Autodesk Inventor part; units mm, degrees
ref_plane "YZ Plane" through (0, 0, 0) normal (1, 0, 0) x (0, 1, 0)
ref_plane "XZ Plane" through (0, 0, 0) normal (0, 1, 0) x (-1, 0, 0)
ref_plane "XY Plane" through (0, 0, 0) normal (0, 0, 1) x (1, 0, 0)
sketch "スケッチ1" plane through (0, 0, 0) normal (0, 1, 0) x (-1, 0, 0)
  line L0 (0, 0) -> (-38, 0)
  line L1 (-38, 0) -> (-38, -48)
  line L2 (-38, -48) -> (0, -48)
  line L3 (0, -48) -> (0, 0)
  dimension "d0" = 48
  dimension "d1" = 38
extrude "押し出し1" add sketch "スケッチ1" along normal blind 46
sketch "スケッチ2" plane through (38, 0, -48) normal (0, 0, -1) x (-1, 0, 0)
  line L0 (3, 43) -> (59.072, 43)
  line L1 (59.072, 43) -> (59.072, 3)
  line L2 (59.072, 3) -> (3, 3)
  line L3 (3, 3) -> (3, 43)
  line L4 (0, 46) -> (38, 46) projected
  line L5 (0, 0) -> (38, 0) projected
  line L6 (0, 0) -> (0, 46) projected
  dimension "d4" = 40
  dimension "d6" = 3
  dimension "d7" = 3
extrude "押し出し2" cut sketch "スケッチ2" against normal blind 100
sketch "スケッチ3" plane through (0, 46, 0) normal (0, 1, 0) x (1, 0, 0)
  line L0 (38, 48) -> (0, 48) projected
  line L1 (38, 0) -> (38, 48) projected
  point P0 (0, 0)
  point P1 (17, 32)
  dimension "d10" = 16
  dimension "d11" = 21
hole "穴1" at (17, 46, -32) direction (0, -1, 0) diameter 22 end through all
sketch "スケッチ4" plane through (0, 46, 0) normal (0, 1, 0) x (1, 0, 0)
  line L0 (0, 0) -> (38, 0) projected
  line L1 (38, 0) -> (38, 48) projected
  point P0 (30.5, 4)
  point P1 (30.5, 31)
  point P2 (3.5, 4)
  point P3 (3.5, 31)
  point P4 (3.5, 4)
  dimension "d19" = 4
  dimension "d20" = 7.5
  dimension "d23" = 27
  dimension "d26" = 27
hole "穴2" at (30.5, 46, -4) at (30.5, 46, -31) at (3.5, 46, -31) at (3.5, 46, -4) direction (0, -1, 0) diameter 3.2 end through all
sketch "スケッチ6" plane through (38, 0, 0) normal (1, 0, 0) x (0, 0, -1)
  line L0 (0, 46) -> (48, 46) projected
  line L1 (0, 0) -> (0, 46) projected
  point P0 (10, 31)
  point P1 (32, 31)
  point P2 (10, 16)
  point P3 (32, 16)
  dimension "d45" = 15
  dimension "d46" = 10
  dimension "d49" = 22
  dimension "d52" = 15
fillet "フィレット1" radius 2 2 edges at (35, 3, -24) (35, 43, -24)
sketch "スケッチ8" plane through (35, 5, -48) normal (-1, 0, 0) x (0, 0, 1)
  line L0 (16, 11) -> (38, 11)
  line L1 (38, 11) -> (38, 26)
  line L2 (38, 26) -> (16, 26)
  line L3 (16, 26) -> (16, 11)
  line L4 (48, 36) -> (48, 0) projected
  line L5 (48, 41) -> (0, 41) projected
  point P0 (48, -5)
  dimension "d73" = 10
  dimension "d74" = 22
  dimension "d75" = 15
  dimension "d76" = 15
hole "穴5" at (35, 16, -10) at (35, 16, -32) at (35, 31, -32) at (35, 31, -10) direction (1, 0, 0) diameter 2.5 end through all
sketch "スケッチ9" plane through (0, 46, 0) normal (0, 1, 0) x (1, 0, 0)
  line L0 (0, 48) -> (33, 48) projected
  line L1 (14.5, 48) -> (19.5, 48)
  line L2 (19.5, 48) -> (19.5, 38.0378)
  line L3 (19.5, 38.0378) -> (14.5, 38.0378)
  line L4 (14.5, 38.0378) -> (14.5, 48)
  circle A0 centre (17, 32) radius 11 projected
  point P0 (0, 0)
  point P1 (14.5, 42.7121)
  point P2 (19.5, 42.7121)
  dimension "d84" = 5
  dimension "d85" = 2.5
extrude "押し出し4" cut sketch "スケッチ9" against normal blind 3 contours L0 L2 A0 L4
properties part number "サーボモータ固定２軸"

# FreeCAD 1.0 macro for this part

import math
import FreeCAD as App
import Part
import Sketcher

V = App.Vector
Q = App.Units.Quantity


def edges_at(feature, points):
    """Names of the edges that pass closest to the given points."""
    edges = feature.Shape.Edges
    near = lambda p: min(range(len(edges)), key=lambda i: edges[i].distToShape(Part.Vertex(*p))[0])
    return sorted({f"Edge{near(p) + 1}" for p in points})


def add_polygon(sketch, points):
    """Adds a closed chain of lines whose ends are joined by coincident constraints."""
    first, n = sketch.GeometryCount, len(points)
    for a, b in zip(points, points[1:] + points[:1]):
        sketch.addGeometry(Part.LineSegment(App.Vector(*a, 0), App.Vector(*b, 0)), False)
    for i in range(n):
        sketch.addConstraint(Sketcher.Constraint("Coincident", first + i, 2, first + (i + 1) % n, 1))

doc = App.newDocument("Part")
body = doc.addObject("PartDesign::Body", "Body")

# Sketch on XZ plane
sketch1 = body.newObject("Sketcher::SketchObject", "Sketch")
sketch1.AttachmentSupport = (doc.getObject("XZ_Plane"), [""])
sketch1.MapMode = "FlatFace"
add_polygon(sketch1, [(0, -48), (0, 0), (38, 0), (38, -48)])  # lines 0-3
sketch1.addConstraint(Sketcher.Constraint("Vertical", 0))
sketch1.addConstraint(Sketcher.Constraint("Horizontal", 1))
sketch1.addConstraint(Sketcher.Constraint("Vertical", 2))
sketch1.addConstraint(Sketcher.Constraint("Horizontal", 3))
sketch1.addConstraint(Sketcher.Constraint("Coincident", 0, 2, -1, 1))
sketch1.addConstraint(Sketcher.Constraint("DistanceX", 1, 1, 1, 2, Q("38 mm")))
sketch1.addConstraint(Sketcher.Constraint("DistanceY", 0, 1, 0, 2, Q("48 mm")))
pad1 = body.newObject("PartDesign::Pad", "Pad")
pad1.Profile = sketch1
pad1.Length = 46
pad1.Reversed = True

# Sketch on XY plane
sketch2 = body.newObject("Sketcher::SketchObject", "Sketch001")
sketch2.AttachmentSupport = (doc.getObject("XY_Plane"), [""])
sketch2.MapMode = "FlatFace"
sketch2.AttachmentOffset = App.Placement(V(0, 0, -48), App.Rotation())
add_polygon(sketch2, [(-21.072, 43), (35, 43), (35, 3), (-21.072, 3)])  # lines 0-3
sketch2.addConstraint(Sketcher.Constraint("Horizontal", 0))
sketch2.addConstraint(Sketcher.Constraint("Vertical", 1))
sketch2.addConstraint(Sketcher.Constraint("Horizontal", 2))
sketch2.addConstraint(Sketcher.Constraint("Vertical", 3))
sketch2.addConstraint(Sketcher.Constraint("DistanceY", 1, 2, 1, 1, Q("40 mm")))
sketch2.addConstraint(Sketcher.Constraint("DistanceY", -1, 1, 1, 2, Q("3 mm")))
sketch2.addConstraint(Sketcher.Constraint("DistanceX", -1, 1, 0, 2, Q("35 mm")))
sketch2.addConstraint(Sketcher.Constraint("DistanceX", 0, 1, 0, 2, Q("56.072 mm")))
pocket1 = body.newObject("PartDesign::Pocket", "Pocket")
pocket1.Profile = sketch2
pocket1.Length = 100
pocket1.Reversed = True

# Sketch on XZ plane
sketch3 = body.newObject("Sketcher::SketchObject", "Sketch002")
sketch3.AttachmentSupport = (doc.getObject("XZ_Plane"), [""])
sketch3.MapMode = "FlatFace"
sketch3.AttachmentOffset = App.Placement(V(0, 0, -46), App.Rotation())
sketch3.addGeometry(Part.Circle(V(17, -32, 0), V(0, 0, 1), 11), False)
sketch3.addConstraint(Sketcher.Constraint("Diameter", 0, Q("22 mm")))
sketch3.addConstraint(Sketcher.Constraint("DistanceX", -1, 1, 0, 3, Q("17 mm")))
sketch3.addConstraint(Sketcher.Constraint("DistanceY", 0, 3, -1, 1, Q("32 mm")))
doc.recompute()
hole = body.newObject("PartDesign::Hole", "Hole")
hole.Profile = sketch3
hole.ThreadType = "None"
hole.Diameter = 22
hole.DepthType = "ThroughAll"
hole.Reversed = True

# Sketch on XZ plane
sketch4 = body.newObject("Sketcher::SketchObject", "Sketch003")
sketch4.AttachmentSupport = (doc.getObject("XZ_Plane"), [""])
sketch4.MapMode = "FlatFace"
sketch4.AttachmentOffset = App.Placement(V(0, 0, -46), App.Rotation())
sketch4.addGeometry(Part.Circle(V(30.5, -4, 0), V(0, 0, 1), 1.6), False)
sketch4.addGeometry(Part.Circle(V(30.5, -31, 0), V(0, 0, 1), 1.6), False)
sketch4.addGeometry(Part.Circle(V(3.5, -31, 0), V(0, 0, 1), 1.6), False)
sketch4.addGeometry(Part.Circle(V(3.5, -4, 0), V(0, 0, 1), 1.6), False)
sketch4.addConstraint(Sketcher.Constraint("Equal", 0, 1))
sketch4.addConstraint(Sketcher.Constraint("Equal", 1, 2))
sketch4.addConstraint(Sketcher.Constraint("Equal", 2, 3))
sketch4.addConstraint(Sketcher.Constraint("Horizontal", 1, 3, 2, 3))
sketch4.addConstraint(Sketcher.Constraint("Horizontal", 0, 3, 3, 3))
sketch4.addConstraint(Sketcher.Constraint("Vertical", 0, 3, 1, 3))
sketch4.addConstraint(Sketcher.Constraint("Vertical", 2, 3, 3, 3))
sketch4.addConstraint(Sketcher.Constraint("Diameter", 0, Q("3.2 mm")))
sketch4.addConstraint(Sketcher.Constraint("DistanceY", 0, 3, -1, 1, Q("4 mm")))
sketch4.addConstraint(Sketcher.Constraint("DistanceY", 1, 3, -1, 1, Q("31 mm")))
sketch4.addConstraint(Sketcher.Constraint("DistanceX", 2, 3, 1, 3, Q("27 mm")))
sketch4.addConstraint(Sketcher.Constraint("DistanceX", -1, 1, 0, 3, Q("30.5 mm")))
doc.recompute()
hole2 = body.newObject("PartDesign::Hole", "Hole001")
hole2.Profile = sketch4
hole2.ThreadType = "None"
hole2.Diameter = 3.2
hole2.DepthType = "ThroughAll"
hole2.Reversed = True
doc.recompute()

fillet = body.newObject("PartDesign::Fillet", "Fillet")
fillet.Base = (hole2, edges_at(hole2, [(35, 3, -24), (35, 43, -24)]))
fillet.Radius = 2

# Sketch on YZ plane
sketch5 = body.newObject("Sketcher::SketchObject", "Sketch004")
sketch5.AttachmentSupport = (doc.getObject("YZ_Plane"), [""])
sketch5.MapMode = "FlatFace"
sketch5.AttachmentOffset = App.Placement(V(0, 0, 35), App.Rotation())
sketch5.addGeometry(Part.Circle(V(16, -10, 0), V(0, 0, 1), 1.25), False)
sketch5.addGeometry(Part.Circle(V(16, -32, 0), V(0, 0, 1), 1.25), False)
sketch5.addGeometry(Part.Circle(V(31, -32, 0), V(0, 0, 1), 1.25), False)
sketch5.addGeometry(Part.Circle(V(31, -10, 0), V(0, 0, 1), 1.25), False)
sketch5.addConstraint(Sketcher.Constraint("Equal", 0, 1))
sketch5.addConstraint(Sketcher.Constraint("Equal", 1, 2))
sketch5.addConstraint(Sketcher.Constraint("Equal", 2, 3))
sketch5.addConstraint(Sketcher.Constraint("Horizontal", 1, 3, 2, 3))
sketch5.addConstraint(Sketcher.Constraint("Horizontal", 0, 3, 3, 3))
sketch5.addConstraint(Sketcher.Constraint("Vertical", 0, 3, 1, 3))
sketch5.addConstraint(Sketcher.Constraint("Vertical", 2, 3, 3, 3))
sketch5.addConstraint(Sketcher.Constraint("Diameter", 0, Q("2.5 mm")))
sketch5.addConstraint(Sketcher.Constraint("DistanceX", -1, 1, 0, 3, Q("16 mm")))
sketch5.addConstraint(Sketcher.Constraint("DistanceY", 0, 3, -1, 1, Q("10 mm")))
sketch5.addConstraint(Sketcher.Constraint("DistanceY", 1, 3, -1, 1, Q("32 mm")))
sketch5.addConstraint(Sketcher.Constraint("DistanceX", -1, 1, 2, 3, Q("31 mm")))
doc.recompute()
hole3 = body.newObject("PartDesign::Hole", "Hole002")
hole3.Profile = sketch5
hole3.ThreadType = "None"
hole3.Diameter = 2.5
hole3.DepthType = "ThroughAll"
hole3.Reversed = True

# Sketch on XZ plane
sketch6 = body.newObject("Sketcher::SketchObject", "Sketch005")
sketch6.AttachmentSupport = (doc.getObject("XZ_Plane"), [""])
sketch6.MapMode = "FlatFace"
sketch6.AttachmentOffset = App.Placement(V(0, 0, -46), App.Rotation())
sketch6.addGeometry(Part.LineSegment(V(19.5, -48, 0), V(14.5, -48, 0)), False)
sketch6.addGeometry(Part.LineSegment(V(14.5, -48, 0), V(14.5, -42.712143, 0)), False)
sketch6.addGeometry(Part.ArcOfCircle(Part.Circle(V(17, -32, 0), V(0, 0, 1), 11), math.radians(-103.136559), math.radians(-76.863441)), False)
sketch6.addGeometry(Part.LineSegment(V(19.5, -42.712143, 0), V(19.5, -48, 0)), False)
sketch6.addConstraint(Sketcher.Constraint("Coincident", 0, 2, 1, 1))
sketch6.addConstraint(Sketcher.Constraint("Coincident", 1, 2, 2, 1))
sketch6.addConstraint(Sketcher.Constraint("Coincident", 2, 2, 3, 1))
sketch6.addConstraint(Sketcher.Constraint("Coincident", 3, 2, 0, 1))
sketch6.addConstraint(Sketcher.Constraint("Horizontal", 0))
sketch6.addConstraint(Sketcher.Constraint("Vertical", 1))
sketch6.addConstraint(Sketcher.Constraint("Vertical", 3))
sketch6.addConstraint(Sketcher.Constraint("Horizontal", 1, 2, 2, 2))
sketch6.addConstraint(Sketcher.Constraint("DistanceX", 0, 2, 0, 1, Q("5 mm")))
sketch6.addConstraint(Sketcher.Constraint("Radius", 2, Q("11 mm")))
sketch6.addConstraint(Sketcher.Constraint("DistanceX", -1, 1, 2, 3, Q("17 mm")))
sketch6.addConstraint(Sketcher.Constraint("DistanceY", 2, 3, -1, 1, Q("32 mm")))
sketch6.addConstraint(Sketcher.Constraint("DistanceY", 0, 2, -1, 1, Q("48 mm")))
pocket2 = body.newObject("PartDesign::Pocket", "Pocket001")
pocket2.Profile = sketch6
pocket2.Length = 3
pocket2.Reversed = True

doc.recompute()
